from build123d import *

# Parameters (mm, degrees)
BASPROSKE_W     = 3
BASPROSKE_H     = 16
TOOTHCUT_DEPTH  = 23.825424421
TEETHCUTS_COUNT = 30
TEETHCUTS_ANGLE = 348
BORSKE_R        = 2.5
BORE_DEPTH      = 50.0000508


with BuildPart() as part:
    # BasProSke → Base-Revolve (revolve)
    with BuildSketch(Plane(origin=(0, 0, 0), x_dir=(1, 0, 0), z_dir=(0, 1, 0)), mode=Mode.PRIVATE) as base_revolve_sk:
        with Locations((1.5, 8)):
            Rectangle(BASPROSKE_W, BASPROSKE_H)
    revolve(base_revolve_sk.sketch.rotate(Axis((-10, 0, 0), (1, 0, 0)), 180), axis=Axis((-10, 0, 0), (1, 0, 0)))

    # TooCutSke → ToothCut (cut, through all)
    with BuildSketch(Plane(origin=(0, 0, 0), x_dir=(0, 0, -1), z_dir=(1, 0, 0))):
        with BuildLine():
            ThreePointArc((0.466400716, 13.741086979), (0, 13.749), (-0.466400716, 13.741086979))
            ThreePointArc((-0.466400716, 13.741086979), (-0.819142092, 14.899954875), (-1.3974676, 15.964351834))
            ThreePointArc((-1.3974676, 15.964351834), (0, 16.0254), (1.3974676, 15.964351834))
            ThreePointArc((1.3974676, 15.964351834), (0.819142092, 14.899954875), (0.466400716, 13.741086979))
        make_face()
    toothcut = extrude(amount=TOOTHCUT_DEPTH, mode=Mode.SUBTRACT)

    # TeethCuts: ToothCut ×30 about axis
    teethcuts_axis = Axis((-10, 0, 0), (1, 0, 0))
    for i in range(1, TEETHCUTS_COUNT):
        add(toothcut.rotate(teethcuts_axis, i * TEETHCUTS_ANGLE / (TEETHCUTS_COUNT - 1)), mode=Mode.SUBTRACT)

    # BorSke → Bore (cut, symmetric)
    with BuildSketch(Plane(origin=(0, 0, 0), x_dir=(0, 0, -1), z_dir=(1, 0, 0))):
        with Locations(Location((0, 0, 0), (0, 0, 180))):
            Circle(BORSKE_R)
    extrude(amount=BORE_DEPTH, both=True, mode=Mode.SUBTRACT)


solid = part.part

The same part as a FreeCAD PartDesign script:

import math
import FreeCAD as App
import Part
import Sketcher

doc = App.newDocument("Part")
body = doc.addObject("PartDesign::Body", "Body")

sketch1 = body.newObject("Sketcher::SketchObject", "Sketch")
sketch1.AttachmentSupport = (doc.getObject("XZ_Plane"), [""])
sketch1.MapMode = "FlatFace"
sketch1.addGeometry([
    Part.LineSegment(App.Vector(0, -16, 0), App.Vector(0, 0, 0)),
    Part.LineSegment(App.Vector(0, 0, 0), App.Vector(3, 0, 0)),
    Part.LineSegment(App.Vector(3, 0, 0), App.Vector(3, -16, 0)),
    Part.LineSegment(App.Vector(3, -16, 0), App.Vector(0, -16, 0)),
], False)
sketch1.addConstraint([
    Sketcher.Constraint("Coincident", 0, 2, 1, 1),
    Sketcher.Constraint("Coincident", 1, 2, 2, 1),
    Sketcher.Constraint("Coincident", 2, 2, 3, 1),
    Sketcher.Constraint("Coincident", 3, 2, 0, 1),
    Sketcher.Constraint("Vertical", 0),
    Sketcher.Constraint("Horizontal", 1),
    Sketcher.Constraint("Vertical", 2),
    Sketcher.Constraint("Horizontal", 3),
    Sketcher.Constraint("Coincident", 0, 2, -1, 1),
    Sketcher.Constraint("DistanceX", 1, 1, 1, 2, 3.0),
    Sketcher.Constraint("DistanceY", 0, 1, 0, 2, 16.0),
])
revolution = body.newObject("PartDesign::Revolution", "Revolution")
revolution.Profile = sketch1
revolution.ReferenceAxis = (sketch1, ["H_Axis"])
revolution.Angle = 360

sketch2 = body.newObject("Sketcher::SketchObject", "Sketch001")
sketch2.AttachmentSupport = (doc.getObject("YZ_Plane"), [""])
sketch2.MapMode = "FlatFace"
sketch2.addGeometry([
    Part.ArcOfCircle(Part.Circle(App.Vector(0, 0, 0), App.Vector(0, 0, 1), 13.7), math.radians(-1.94), math.radians(1.94)),
    Part.ArcOfCircle(Part.Circle(App.Vector(12.6, -6.4, 0), App.Vector(0, 0, 1), 6), math.radians(56), math.radians(79)),
    Part.ArcOfCircle(Part.Circle(App.Vector(0, 0, 0), App.Vector(0, 0, 1), 16), math.radians(-5), math.radians(5)),
    Part.ArcOfCircle(Part.Circle(App.Vector(12.6, 6.4, 0), App.Vector(0, 0, 1), 6), math.radians(-79), math.radians(-56)),
], False)
sketch2.addConstraint([
    Sketcher.Constraint("Coincident", 0, 1, 1, 2),
    Sketcher.Constraint("Coincident", 1, 1, 2, 1),
    Sketcher.Constraint("Coincident", 2, 2, 3, 2),
    Sketcher.Constraint("Coincident", 3, 1, 0, 2),
    Sketcher.Constraint("Coincident", 0, 3, -1, 1),
    Sketcher.Constraint("Coincident", 2, 3, -1, 1),
    Sketcher.Constraint("Equal", 1, 3),
    Sketcher.Constraint("Symmetric", 1, 3, 3, 3, -1),
    Sketcher.Constraint("Radius", 1, 6.0),
    Sketcher.Constraint("Radius", 0, 13.749),
    Sketcher.Constraint("Radius", 2, 16.0254),
    Sketcher.Constraint("DistanceY", 0, 1, -1, 1, 0.466401),
    Sketcher.Constraint("DistanceX", -1, 1, 1, 1, 15.964352),
])
pocket1 = body.newObject("PartDesign::Pocket", "Pocket")
pocket1.Profile = sketch2
pocket1.Type = "ThroughAll"
pocket1.Reversed = True
doc.recompute()

polarpattern = body.newObject("PartDesign::PolarPattern", "PolarPattern")
polarpattern.Originals = [pocket1]
polarpattern.Axis = (doc.getObject("X_Axis"), [""])
polarpattern.Angle = 360
polarpattern.Occurrences = 30
body.Tip = polarpattern

sketch3 = body.newObject("Sketcher::SketchObject", "Sketch002")
sketch3.AttachmentSupport = (doc.getObject("YZ_Plane"), [""])
sketch3.MapMode = "FlatFace"
sketch3.addGeometry(Part.Circle(App.Vector(0, 0, 0), App.Vector(0, 0, 1), 2.5), False)
sketch3.addConstraint([
    Sketcher.Constraint("Coincident", 0, 3, -1, 1),
    Sketcher.Constraint("Diameter", 0, 5.0),
])
pocket2 = body.newObject("PartDesign::Pocket", "Pocket001")
pocket2.Profile = sketch3
pocket2.Length = 100.000102
pocket2.Midplane = True

doc.recompute()
